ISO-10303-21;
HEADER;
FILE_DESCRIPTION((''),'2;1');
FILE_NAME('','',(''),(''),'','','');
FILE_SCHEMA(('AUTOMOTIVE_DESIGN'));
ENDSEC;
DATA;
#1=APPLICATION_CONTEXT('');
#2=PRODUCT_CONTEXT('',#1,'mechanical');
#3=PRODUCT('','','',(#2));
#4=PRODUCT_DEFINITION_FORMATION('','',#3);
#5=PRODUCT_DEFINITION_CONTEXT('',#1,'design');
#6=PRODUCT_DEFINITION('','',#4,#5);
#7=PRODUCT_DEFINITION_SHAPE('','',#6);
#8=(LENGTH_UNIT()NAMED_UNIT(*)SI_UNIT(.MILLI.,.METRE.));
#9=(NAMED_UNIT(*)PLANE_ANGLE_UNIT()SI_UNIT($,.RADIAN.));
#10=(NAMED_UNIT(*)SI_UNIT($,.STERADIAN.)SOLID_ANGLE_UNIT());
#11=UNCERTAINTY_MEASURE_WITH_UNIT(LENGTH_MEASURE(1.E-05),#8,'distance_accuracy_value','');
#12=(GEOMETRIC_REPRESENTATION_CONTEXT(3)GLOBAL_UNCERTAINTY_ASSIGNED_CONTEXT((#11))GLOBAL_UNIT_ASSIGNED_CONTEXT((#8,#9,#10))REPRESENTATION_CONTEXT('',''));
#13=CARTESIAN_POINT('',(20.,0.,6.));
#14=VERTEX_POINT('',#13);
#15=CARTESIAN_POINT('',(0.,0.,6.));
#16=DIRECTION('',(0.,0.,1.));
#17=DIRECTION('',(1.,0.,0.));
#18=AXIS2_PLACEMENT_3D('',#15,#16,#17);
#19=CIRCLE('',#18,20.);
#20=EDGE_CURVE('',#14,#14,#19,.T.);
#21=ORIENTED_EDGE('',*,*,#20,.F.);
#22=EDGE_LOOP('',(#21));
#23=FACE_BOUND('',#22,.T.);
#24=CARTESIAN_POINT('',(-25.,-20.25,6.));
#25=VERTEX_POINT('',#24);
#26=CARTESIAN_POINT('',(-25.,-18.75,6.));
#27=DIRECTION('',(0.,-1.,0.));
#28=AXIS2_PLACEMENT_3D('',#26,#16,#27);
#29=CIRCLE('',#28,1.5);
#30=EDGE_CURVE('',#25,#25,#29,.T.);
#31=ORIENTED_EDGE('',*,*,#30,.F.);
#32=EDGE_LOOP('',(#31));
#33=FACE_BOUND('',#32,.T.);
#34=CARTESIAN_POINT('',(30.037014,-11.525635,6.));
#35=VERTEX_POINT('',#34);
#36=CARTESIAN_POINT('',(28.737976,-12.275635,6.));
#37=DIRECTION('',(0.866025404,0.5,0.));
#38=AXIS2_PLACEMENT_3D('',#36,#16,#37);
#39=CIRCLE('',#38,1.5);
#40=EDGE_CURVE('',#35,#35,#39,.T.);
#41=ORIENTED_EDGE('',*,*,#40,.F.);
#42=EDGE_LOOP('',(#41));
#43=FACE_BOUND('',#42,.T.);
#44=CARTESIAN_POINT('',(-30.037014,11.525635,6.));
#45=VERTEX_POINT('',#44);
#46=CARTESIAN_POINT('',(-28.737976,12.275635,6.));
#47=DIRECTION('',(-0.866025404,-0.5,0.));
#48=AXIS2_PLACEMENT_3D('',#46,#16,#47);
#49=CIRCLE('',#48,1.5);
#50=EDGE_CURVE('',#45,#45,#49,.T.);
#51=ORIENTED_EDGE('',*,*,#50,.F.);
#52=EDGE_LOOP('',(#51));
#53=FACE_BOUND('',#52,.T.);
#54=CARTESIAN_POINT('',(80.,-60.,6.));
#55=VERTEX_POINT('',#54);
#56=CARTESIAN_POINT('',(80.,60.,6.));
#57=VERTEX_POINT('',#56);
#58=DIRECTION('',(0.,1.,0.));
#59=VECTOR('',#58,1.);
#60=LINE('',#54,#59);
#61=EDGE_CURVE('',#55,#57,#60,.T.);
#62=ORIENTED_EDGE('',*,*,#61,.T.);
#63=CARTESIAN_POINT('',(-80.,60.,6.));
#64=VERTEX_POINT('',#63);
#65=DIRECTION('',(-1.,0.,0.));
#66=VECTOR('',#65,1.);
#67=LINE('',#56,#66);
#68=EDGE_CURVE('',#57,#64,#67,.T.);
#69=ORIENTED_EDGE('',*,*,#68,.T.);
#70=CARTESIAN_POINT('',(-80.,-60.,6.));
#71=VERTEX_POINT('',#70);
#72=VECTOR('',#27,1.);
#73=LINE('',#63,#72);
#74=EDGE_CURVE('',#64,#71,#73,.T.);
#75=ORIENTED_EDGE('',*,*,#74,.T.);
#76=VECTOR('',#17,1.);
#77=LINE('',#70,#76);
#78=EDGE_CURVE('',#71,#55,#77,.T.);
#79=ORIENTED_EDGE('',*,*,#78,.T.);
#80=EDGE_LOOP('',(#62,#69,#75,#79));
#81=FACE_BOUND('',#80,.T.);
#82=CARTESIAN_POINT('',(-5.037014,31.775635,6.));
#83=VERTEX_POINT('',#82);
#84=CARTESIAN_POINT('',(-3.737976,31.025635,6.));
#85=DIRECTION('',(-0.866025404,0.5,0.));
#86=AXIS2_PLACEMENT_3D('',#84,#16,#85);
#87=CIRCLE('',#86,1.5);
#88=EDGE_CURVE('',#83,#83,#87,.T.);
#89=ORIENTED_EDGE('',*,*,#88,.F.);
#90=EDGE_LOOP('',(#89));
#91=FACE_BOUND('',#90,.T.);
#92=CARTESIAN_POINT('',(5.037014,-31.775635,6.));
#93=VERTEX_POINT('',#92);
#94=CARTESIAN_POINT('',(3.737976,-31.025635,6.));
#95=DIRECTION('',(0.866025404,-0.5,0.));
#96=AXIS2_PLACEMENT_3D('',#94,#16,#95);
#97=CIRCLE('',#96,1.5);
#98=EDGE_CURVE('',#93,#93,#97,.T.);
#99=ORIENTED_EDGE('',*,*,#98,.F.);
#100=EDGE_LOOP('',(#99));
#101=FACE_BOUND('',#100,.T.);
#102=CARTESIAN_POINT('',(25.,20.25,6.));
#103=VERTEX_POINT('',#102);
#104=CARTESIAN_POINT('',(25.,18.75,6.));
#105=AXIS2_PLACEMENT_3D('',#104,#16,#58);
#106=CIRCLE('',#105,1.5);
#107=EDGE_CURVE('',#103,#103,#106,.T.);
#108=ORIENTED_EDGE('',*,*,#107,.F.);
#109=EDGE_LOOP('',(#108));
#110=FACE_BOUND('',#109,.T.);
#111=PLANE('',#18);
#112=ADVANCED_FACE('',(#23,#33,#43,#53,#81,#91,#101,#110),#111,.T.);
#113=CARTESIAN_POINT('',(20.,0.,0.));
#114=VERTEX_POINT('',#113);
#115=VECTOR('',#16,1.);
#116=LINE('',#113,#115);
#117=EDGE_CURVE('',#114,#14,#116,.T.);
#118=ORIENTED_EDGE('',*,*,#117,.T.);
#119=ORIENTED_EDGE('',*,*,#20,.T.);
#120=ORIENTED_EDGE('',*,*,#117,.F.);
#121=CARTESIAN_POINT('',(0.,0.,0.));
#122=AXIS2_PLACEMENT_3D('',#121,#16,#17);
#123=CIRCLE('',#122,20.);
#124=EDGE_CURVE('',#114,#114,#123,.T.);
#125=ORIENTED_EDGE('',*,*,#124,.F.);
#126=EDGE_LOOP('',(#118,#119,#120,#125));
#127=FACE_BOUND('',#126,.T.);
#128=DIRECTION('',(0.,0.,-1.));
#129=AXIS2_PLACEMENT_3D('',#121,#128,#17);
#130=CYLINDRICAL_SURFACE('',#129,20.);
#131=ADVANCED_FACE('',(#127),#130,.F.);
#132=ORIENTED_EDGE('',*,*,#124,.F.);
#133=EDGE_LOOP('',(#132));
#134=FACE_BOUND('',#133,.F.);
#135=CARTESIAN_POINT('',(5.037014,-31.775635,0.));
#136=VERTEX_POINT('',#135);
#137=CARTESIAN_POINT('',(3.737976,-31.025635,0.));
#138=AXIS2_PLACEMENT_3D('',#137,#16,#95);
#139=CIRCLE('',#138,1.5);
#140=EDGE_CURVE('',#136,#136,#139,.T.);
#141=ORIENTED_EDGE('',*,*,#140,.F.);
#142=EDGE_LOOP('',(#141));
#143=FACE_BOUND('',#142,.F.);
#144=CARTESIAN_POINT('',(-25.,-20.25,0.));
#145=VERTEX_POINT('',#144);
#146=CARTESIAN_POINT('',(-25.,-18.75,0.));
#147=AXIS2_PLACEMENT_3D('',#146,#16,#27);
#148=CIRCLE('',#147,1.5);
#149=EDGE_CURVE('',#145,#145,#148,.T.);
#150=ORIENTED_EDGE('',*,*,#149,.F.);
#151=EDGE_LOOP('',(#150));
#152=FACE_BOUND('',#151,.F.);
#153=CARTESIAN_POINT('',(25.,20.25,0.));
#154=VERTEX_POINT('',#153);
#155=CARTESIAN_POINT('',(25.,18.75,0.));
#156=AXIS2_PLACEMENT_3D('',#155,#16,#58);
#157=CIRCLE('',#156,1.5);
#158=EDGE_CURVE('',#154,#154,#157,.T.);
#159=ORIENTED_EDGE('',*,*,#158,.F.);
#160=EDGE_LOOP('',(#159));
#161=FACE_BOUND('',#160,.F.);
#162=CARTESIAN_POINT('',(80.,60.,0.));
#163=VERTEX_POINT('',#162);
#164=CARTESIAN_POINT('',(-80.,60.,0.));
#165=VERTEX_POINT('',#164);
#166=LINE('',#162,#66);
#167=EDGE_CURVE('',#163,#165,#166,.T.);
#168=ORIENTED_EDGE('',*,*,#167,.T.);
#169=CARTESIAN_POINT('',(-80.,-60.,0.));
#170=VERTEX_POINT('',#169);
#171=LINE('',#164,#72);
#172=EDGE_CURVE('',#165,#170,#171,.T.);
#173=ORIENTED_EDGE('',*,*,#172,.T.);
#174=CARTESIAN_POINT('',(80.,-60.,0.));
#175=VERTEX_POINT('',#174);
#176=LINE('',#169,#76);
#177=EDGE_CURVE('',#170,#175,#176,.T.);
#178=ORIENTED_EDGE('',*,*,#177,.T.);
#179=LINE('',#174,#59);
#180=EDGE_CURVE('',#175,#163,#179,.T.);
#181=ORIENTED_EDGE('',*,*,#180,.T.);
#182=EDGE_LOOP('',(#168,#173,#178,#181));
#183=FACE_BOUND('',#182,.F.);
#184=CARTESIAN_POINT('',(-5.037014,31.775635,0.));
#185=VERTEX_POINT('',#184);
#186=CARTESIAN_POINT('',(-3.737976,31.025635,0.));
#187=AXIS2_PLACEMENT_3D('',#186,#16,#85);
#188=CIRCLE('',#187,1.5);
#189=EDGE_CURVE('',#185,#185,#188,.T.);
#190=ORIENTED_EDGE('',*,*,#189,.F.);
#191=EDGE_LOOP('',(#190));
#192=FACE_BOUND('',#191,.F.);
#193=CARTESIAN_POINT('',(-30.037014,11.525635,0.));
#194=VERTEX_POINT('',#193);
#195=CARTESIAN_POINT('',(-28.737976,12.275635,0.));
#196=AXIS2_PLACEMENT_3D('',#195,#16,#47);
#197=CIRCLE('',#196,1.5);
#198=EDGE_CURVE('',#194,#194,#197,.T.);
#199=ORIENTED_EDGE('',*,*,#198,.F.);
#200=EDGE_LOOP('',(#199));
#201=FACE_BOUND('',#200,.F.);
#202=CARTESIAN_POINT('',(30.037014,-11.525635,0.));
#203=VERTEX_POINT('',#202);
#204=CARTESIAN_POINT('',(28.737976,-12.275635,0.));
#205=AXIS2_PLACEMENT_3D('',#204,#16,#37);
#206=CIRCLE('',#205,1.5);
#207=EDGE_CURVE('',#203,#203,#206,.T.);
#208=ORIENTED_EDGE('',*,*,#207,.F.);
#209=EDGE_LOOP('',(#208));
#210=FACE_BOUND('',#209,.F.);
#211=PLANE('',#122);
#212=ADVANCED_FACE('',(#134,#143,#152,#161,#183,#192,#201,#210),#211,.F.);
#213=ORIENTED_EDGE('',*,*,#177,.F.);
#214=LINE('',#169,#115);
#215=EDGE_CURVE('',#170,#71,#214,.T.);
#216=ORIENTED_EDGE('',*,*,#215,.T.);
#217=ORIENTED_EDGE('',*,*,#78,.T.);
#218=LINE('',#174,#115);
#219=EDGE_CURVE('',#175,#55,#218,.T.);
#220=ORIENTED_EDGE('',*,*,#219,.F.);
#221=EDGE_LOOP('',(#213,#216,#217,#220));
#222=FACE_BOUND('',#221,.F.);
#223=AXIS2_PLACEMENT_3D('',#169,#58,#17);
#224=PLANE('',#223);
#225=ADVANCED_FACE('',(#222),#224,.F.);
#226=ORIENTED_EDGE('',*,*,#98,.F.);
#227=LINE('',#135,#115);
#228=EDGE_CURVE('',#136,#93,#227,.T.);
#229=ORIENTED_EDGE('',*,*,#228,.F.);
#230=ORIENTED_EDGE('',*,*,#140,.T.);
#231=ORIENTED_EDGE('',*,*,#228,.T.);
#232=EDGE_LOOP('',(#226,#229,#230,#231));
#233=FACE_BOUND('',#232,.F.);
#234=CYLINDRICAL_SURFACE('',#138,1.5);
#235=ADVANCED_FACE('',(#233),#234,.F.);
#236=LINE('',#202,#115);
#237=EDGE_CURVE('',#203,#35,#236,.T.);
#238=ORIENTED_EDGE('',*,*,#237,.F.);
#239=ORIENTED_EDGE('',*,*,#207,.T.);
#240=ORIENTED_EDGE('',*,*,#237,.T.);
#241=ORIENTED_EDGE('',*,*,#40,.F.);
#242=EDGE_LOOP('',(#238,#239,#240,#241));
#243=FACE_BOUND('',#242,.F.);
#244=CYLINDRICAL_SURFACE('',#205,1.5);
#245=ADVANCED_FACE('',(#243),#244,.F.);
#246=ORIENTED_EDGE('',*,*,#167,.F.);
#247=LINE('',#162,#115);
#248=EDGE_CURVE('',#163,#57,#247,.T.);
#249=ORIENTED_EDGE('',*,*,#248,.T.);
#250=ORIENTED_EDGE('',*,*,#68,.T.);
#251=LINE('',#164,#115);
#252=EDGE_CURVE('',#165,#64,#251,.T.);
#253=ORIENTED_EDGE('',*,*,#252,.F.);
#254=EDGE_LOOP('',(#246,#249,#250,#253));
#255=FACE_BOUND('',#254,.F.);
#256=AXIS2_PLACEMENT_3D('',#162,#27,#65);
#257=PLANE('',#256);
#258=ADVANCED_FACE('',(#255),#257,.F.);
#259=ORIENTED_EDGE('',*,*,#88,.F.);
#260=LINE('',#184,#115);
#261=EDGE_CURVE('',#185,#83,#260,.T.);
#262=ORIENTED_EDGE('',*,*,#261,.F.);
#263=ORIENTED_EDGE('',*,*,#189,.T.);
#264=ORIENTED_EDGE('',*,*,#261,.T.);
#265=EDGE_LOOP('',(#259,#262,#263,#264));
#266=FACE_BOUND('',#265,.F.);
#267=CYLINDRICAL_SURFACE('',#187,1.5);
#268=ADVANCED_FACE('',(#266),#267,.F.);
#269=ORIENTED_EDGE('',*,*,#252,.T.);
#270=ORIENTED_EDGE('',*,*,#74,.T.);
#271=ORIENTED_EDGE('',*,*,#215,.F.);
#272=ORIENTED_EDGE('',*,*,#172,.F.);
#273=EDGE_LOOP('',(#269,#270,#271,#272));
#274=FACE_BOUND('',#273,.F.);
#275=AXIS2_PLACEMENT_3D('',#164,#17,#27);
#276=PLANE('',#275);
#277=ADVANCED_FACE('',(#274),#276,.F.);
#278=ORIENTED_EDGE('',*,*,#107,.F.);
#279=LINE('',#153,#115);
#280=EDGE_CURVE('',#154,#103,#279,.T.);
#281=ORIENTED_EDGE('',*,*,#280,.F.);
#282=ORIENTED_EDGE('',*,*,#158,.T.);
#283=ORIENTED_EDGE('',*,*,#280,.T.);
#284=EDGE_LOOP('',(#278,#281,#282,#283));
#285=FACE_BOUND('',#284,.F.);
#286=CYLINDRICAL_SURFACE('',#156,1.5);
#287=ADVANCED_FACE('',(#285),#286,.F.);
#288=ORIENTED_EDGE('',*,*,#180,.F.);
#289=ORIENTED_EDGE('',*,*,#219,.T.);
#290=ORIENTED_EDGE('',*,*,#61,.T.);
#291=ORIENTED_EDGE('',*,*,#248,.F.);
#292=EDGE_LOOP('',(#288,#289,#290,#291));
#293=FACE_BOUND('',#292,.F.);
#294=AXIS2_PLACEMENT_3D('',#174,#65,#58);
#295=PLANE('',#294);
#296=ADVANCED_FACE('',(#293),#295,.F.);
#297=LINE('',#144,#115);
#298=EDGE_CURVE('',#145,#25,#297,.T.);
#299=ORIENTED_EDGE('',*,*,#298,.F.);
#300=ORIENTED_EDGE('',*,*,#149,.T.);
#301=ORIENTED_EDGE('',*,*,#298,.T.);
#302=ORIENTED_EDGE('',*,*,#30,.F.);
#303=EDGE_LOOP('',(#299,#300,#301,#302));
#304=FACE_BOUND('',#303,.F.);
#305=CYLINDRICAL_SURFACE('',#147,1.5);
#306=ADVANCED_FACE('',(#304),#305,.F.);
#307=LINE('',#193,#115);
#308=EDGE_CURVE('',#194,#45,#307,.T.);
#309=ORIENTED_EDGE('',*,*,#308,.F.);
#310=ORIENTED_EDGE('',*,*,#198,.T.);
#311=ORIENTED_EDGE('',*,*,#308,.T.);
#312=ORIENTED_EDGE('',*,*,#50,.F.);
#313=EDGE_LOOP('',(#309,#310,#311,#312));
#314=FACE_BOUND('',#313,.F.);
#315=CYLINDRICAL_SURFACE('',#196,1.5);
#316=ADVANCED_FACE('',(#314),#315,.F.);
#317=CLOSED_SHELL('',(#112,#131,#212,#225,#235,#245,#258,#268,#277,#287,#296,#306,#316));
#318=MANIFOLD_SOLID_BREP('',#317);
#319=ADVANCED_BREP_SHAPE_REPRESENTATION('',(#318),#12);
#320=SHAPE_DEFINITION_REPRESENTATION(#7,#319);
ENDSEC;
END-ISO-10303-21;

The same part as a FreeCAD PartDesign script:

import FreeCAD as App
import Part
import Sketcher
from FreeCAD import Vector


def add_polygon(sketch, points):
    """Adds a closed chain of lines whose ends are joined by coincident constraints."""
    first, n = sketch.GeometryCount, len(points)
    for a, b in zip(points, points[1:] + points[:1]):
        sketch.addGeometry(Part.LineSegment(App.Vector(*a, 0), App.Vector(*b, 0)), False)
    for i in range(n):
        sketch.addConstraint(Sketcher.Constraint("Coincident", first + i, 2, first + (i + 1) % n, 1))

doc = App.newDocument("Part")
params = doc.addObject("Spreadsheet::Sheet", "Params")
for row, (alias, value) in enumerate([
    ("sketch1_diameter", "40 mm"),
    ("sketch1_width", "160 mm"),
    ("sketch1_height", "120 mm"),
    ("pad1_length", "6 mm"),
    ("sketch2_diameter", "3 mm"),
    ("hole_diameter", "3 mm"),
], start=1):
    params.set(f"A{row}", alias)
    params.set(f"B{row}", "=" + value)
    params.setAlias(f"B{row}", alias)

body = doc.addObject("PartDesign::Body", "Body")

# Sketch on XY plane
sketch1 = body.newObject("Sketcher::SketchObject", "Sketch")
sketch1.AttachmentSupport = (doc.getObject("XY_Plane"), [""])
sketch1.MapMode = "FlatFace"
add_polygon(sketch1, [(-80, 60), (-80, -60), (80, -60), (80, 60)])  # lines 0-3
sketch1.addGeometry(Part.Circle(Vector(0, 0, 0), Vector(0, 0, 1), 20), False)  # 4
sketch1.addConstraint(Sketcher.Constraint("Vertical", 0))
sketch1.addConstraint(Sketcher.Constraint("Horizontal", 1))
sketch1.addConstraint(Sketcher.Constraint("Vertical", 2))
sketch1.addConstraint(Sketcher.Constraint("Horizontal", 3))
sketch1.addConstraint(Sketcher.Constraint("Coincident", 4, 3, -1, 1))
sketch1.addConstraint(Sketcher.Constraint("Symmetric", 0, 2, 2, 2, -1, 1))
sketch1.addConstraint(Sketcher.Constraint("Diameter", 4, 40.0))
sketch1.addConstraint(Sketcher.Constraint("DistanceX", 1, 1, 1, 2, 160.0))
sketch1.addConstraint(Sketcher.Constraint("DistanceY", 0, 2, 0, 1, 120.0))
sketch1.setExpression("Constraints[10]", "Params.sketch1_diameter")
sketch1.setExpression("Constraints[11]", "Params.sketch1_width")
sketch1.setExpression("Constraints[12]", "Params.sketch1_height")
pad1 = body.newObject("PartDesign::Pad", "Pad")
pad1.Profile = sketch1
pad1.setExpression("Length", "Params.pad1_length")

# Sketch on XY plane
sketch2 = body.newObject("Sketcher::SketchObject", "Sketch001")
sketch2.AttachmentSupport = (doc.getObject("XY_Plane"), [""])
sketch2.MapMode = "FlatFace"
sketch2.addGeometry(Part.Circle(Vector(25, 18.75, 0), Vector(0, 0, 1), 1.5), False)
sketch2.addConstraint(Sketcher.Constraint("Diameter", 0, 3.0))
sketch2.addConstraint(Sketcher.Constraint("DistanceX", -1, 1, 0, 3, 25.0))
sketch2.addConstraint(Sketcher.Constraint("DistanceY", -1, 1, 0, 3, 18.75))
sketch2.setExpression("Constraints[0]", "Params.sketch2_diameter")
doc.recompute()
hole = body.newObject("PartDesign::Hole", "Hole")
hole.Profile = sketch2
hole.ThreadType = "None"
hole.setExpression("Diameter", "Params.hole_diameter")
hole.DepthType = "ThroughAll"
hole.Reversed = True
doc.recompute()

polarpattern = body.newObject("PartDesign::PolarPattern", "PolarPattern")
polarpattern.Originals = [hole]
polarpattern.Axis = (doc.getObject("Z_Axis"), [""])
polarpattern.Angle = 360
polarpattern.Occurrences = 6
body.Tip = polarpattern

doc.recompute()
